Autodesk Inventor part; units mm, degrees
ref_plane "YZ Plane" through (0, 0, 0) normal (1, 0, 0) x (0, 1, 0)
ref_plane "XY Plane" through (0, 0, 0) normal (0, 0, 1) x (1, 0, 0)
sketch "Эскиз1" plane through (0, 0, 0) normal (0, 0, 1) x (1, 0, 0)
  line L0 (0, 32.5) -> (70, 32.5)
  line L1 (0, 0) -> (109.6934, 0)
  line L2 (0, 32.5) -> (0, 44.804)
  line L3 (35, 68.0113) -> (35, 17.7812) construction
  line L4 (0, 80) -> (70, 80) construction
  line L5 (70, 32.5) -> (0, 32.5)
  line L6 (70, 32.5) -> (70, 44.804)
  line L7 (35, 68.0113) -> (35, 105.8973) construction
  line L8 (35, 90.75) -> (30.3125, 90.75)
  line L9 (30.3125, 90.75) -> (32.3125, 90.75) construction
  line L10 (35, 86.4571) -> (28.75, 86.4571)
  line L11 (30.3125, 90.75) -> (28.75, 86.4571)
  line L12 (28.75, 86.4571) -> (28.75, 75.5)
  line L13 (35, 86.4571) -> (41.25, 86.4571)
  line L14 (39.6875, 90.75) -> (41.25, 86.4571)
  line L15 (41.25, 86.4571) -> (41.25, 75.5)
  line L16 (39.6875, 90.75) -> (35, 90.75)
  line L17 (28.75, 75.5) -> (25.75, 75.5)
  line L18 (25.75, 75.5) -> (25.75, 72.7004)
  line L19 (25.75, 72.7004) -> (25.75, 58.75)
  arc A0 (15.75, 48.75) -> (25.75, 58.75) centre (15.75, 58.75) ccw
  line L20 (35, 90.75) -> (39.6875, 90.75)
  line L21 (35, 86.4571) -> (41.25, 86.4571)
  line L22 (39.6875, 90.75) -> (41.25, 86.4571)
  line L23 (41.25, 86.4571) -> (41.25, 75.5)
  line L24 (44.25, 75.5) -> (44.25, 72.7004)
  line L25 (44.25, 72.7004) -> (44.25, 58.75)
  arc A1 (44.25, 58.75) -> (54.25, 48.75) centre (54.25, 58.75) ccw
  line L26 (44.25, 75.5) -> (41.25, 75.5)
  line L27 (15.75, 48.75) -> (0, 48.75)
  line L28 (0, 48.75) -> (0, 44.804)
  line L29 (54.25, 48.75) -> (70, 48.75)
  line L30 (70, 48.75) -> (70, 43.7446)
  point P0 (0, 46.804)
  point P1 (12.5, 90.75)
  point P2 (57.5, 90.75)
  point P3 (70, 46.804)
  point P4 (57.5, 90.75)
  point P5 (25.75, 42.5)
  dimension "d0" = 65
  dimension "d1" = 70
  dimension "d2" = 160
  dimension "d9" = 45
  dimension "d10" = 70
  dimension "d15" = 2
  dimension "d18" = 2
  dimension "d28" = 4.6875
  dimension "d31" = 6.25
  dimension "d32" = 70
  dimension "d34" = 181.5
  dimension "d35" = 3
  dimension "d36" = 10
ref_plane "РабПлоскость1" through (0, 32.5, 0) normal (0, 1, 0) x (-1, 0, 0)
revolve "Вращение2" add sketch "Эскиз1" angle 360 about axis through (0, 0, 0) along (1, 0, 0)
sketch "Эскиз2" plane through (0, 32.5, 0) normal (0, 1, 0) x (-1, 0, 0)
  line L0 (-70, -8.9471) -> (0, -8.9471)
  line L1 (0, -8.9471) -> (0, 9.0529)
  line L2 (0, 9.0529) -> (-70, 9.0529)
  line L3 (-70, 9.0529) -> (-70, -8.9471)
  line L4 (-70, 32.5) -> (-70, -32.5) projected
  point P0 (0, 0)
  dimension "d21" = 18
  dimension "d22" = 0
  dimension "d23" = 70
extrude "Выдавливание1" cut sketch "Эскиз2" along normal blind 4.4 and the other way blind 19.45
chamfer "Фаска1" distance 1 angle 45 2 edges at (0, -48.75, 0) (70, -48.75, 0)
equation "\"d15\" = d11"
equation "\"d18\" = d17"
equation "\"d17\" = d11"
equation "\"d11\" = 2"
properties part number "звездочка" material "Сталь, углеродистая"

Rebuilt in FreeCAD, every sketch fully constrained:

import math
import FreeCAD as App
import Part
import Sketcher
from FreeCAD import Vector
Q = App.Units.Quantity


def edges_at(feature, points):
    """Names of the edges that pass closest to the given points."""
    edges = feature.Shape.Edges
    near = lambda p: min(range(len(edges)), key=lambda i: edges[i].distToShape(Part.Vertex(*p))[0])
    return sorted({f"Edge{near(p) + 1}" for p in points})


def add_polygon(sketch, points):
    """Adds a closed chain of lines whose ends are joined by coincident constraints."""
    first, n = sketch.GeometryCount, len(points)
    for a, b in zip(points, points[1:] + points[:1]):
        sketch.addGeometry(Part.LineSegment(App.Vector(*a, 0), App.Vector(*b, 0)), False)
    for i in range(n):
        sketch.addConstraint(Sketcher.Constraint("Coincident", first + i, 2, first + (i + 1) % n, 1))

doc = App.newDocument("Part")
body = doc.addObject("PartDesign::Body", "Body")

sketch1 = body.newObject("Sketcher::SketchObject", "Sketch")
sketch1.AttachmentSupport = (doc.getObject("XY_Plane"), [""])
sketch1.MapMode = "FlatFace"
sketch1.addGeometry([
    Part.LineSegment(Vector(0, 32.5, 0), Vector(70, 32.5, 0)),
    Part.LineSegment(Vector(70, 32.5, 0), Vector(70, 48.8, 0)),
    Part.LineSegment(Vector(70, 48.8, 0), Vector(54.2, 48.8, 0)),
    Part.ArcOfCircle(Part.Circle(Vector(54.2, 58.8, 0), Vector(0, 0, 1), 10), math.radians(180), math.radians(270)),
    Part.LineSegment(Vector(44.2, 58.8, 0), Vector(44.2, 75.5, 0)),
    Part.LineSegment(Vector(44.2, 75.5, 0), Vector(41.2, 75.5, 0)),
    Part.LineSegment(Vector(41.2, 75.5, 0), Vector(41.2, 86.5, 0)),
    Part.LineSegment(Vector(41.2, 86.5, 0), Vector(39.7, 90.8, 0)),
    Part.LineSegment(Vector(39.7, 90.8, 0), Vector(30.3, 90.8, 0)),
    Part.LineSegment(Vector(30.3, 90.8, 0), Vector(28.8, 86.5, 0)),
    Part.LineSegment(Vector(28.8, 86.5, 0), Vector(28.8, 75.5, 0)),
    Part.LineSegment(Vector(28.8, 75.5, 0), Vector(25.8, 75.5, 0)),
    Part.LineSegment(Vector(25.8, 75.5, 0), Vector(25.8, 58.8, 0)),
    Part.ArcOfCircle(Part.Circle(Vector(15.8, 58.8, 0), Vector(0, 0, 1), 10), math.radians(-90), math.radians(0)),
    Part.LineSegment(Vector(15.8, 48.8, 0), Vector(0, 48.8, 0)),
    Part.LineSegment(Vector(0, 48.8, 0), Vector(0, 32.5, 0)),
], False)
sketch1.addConstraint([
    Sketcher.Constraint("Coincident", 0, 2, 1, 1),
    Sketcher.Constraint("Coincident", 1, 2, 2, 1),
    Sketcher.Constraint("Tangent", 2, 2, 3, 2),
    Sketcher.Constraint("Tangent", 3, 1, 4, 1),
    Sketcher.Constraint("Coincident", 4, 2, 5, 1),
    Sketcher.Constraint("Coincident", 5, 2, 6, 1),
    Sketcher.Constraint("Coincident", 6, 2, 7, 1),
    Sketcher.Constraint("Coincident", 7, 2, 8, 1),
    Sketcher.Constraint("Coincident", 8, 2, 9, 1),
    Sketcher.Constraint("Coincident", 9, 2, 10, 1),
    Sketcher.Constraint("Coincident", 10, 2, 11, 1),
    Sketcher.Constraint("Coincident", 11, 2, 12, 1),
    Sketcher.Constraint("Tangent", 12, 2, 13, 2),
    Sketcher.Constraint("Tangent", 13, 1, 14, 1),
    Sketcher.Constraint("Coincident", 14, 2, 15, 1),
    Sketcher.Constraint("Coincident", 15, 2, 0, 1),
    Sketcher.Constraint("Horizontal", 0),
    Sketcher.Constraint("Vertical", 1),
    Sketcher.Constraint("Horizontal", 2),
    Sketcher.Constraint("Vertical", 4),
    Sketcher.Constraint("Horizontal", 5),
    Sketcher.Constraint("Vertical", 6),
    Sketcher.Constraint("Horizontal", 8),
    Sketcher.Constraint("Vertical", 10),
    Sketcher.Constraint("Horizontal", 11),
    Sketcher.Constraint("Vertical", 12),
    Sketcher.Constraint("Horizontal", 14),
    Sketcher.Constraint("Vertical", 15),
    Sketcher.Constraint("Equal", 3, 13),
    Sketcher.Constraint("PointOnObject", 14, 2, -2),
    Sketcher.Constraint("Horizontal", 3, 3, 13, 3),
    Sketcher.Constraint("Horizontal", 6, 2, 9, 2),
    Sketcher.Constraint("Horizontal", 5, 2, 10, 2),
    Sketcher.Constraint("Equal", 5, 11),
    Sketcher.Constraint("Equal", 2, 14),
    Sketcher.Constraint("Equal", 7, 9),
    Sketcher.Constraint("Radius", 3, Q("10 mm")),
    Sketcher.Constraint("DistanceX", 0, 1, 0, 2, Q("70 mm")),
    Sketcher.Constraint("DistanceX", 5, 2, 5, 1, Q("3 mm")),
    Sketcher.Constraint("Angle", 7, Q("110.0001 deg")),
    Sketcher.Constraint("DistanceY", 3, 1, 7, 2, Q("32 mm")),
    Sketcher.Constraint("DistanceY", 15, 2, 11, 2, Q("43 mm")),
    Sketcher.Constraint("DistanceX", 2, 2, 2, 1, Q("15.75 mm")),
    Sketcher.Constraint("DistanceY", 1, 1, 1, 2, Q("16.25 mm")),
    Sketcher.Constraint("DistanceY", -1, 1, 0, 2, Q("32.5 mm")),
    Sketcher.Constraint("DistanceX", 8, 2, 8, 1, Q("9.375 mm")),
])
revolution = body.newObject("PartDesign::Revolution", "Revolution")
revolution.Profile = sketch1
revolution.ReferenceAxis = (sketch1, ["H_Axis"])
revolution.Angle = 360

sketch2 = body.newObject("Sketcher::SketchObject", "Sketch001")
sketch2.AttachmentSupport = (doc.getObject("XZ_Plane"), [""])
sketch2.MapMode = "FlatFace"
sketch2.AttachmentOffset = App.Placement(Vector(0, 0, -32.5), App.Rotation())
add_polygon(sketch2, [(70, 9), (70, -9), (0, -9), (0, 9)])
sketch2.addConstraint([
    Sketcher.Constraint("Vertical", 0),
    Sketcher.Constraint("Horizontal", 1),
    Sketcher.Constraint("Vertical", 2),
    Sketcher.Constraint("Horizontal", 3),
    Sketcher.Constraint("PointOnObject", 1, 2, -2),
    Sketcher.Constraint("DistanceX", 1, 2, 1, 1, Q("70 mm")),
    Sketcher.Constraint("DistanceY", 0, 2, 0, 1, Q("18 mm")),
    Sketcher.Constraint("DistanceY", 0, 2, -1, 1, Q("8.947 mm")),
])
pocket1 = body.newObject("PartDesign::Pocket", "Pocket")
pocket1.Profile = sketch2
pocket1.Type = "TwoLengths"
pocket1.Length = 4.4
pocket1.Length2 = 19.45
doc.recompute()

chamfer = body.newObject("PartDesign::Chamfer", "Chamfer")
chamfer.Base = (pocket1, edges_at(pocket1, [(0, -48.75, 0), (70, -48.75, 0)]))
chamfer.Size = 1

doc.recompute()
